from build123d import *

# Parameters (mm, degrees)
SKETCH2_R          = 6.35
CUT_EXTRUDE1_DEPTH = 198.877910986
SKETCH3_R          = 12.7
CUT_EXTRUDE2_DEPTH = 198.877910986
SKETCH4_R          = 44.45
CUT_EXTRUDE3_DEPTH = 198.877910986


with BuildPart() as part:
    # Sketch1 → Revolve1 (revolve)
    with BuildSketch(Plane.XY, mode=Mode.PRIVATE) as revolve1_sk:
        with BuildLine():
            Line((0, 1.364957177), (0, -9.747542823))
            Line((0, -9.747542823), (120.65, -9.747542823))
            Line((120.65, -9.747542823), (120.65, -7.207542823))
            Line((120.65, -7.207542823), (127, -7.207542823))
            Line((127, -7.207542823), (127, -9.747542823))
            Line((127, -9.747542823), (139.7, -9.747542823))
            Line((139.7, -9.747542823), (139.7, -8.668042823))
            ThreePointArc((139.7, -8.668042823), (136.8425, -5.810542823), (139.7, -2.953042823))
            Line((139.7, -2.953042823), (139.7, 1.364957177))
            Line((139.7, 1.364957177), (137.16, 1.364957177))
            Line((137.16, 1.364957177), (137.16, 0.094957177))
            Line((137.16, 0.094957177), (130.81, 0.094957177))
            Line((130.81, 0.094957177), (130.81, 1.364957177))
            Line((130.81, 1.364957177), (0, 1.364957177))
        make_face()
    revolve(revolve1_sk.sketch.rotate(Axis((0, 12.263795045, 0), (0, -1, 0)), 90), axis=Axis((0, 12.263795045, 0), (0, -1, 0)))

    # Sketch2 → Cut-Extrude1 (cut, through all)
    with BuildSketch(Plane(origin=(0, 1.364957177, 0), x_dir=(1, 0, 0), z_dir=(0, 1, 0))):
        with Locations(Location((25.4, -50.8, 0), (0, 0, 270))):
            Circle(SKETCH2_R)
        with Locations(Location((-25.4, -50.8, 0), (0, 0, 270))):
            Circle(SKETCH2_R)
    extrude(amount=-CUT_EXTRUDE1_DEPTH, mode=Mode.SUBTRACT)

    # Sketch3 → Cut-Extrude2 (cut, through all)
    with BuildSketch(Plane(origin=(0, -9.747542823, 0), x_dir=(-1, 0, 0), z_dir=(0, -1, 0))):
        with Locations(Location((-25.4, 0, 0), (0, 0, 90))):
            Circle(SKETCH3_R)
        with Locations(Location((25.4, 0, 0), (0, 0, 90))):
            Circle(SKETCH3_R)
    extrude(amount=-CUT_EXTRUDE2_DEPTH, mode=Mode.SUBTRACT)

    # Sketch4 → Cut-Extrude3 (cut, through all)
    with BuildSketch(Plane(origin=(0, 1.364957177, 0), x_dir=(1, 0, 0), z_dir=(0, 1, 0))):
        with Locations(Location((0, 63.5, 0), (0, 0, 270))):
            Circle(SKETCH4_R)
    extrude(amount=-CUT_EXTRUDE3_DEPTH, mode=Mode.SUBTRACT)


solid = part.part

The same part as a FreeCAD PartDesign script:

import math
import FreeCAD as App
import Part
import Sketcher
Q = App.Units.Quantity

doc = App.newDocument("Part")
body = doc.addObject("PartDesign::Body", "Body")

# Sketch on XY plane
sketch1 = body.newObject("Sketcher::SketchObject", "Sketch")
sketch1.AttachmentSupport = (doc.getObject("XY_Plane"), [""])
sketch1.MapMode = "FlatFace"
sketch1.addGeometry([
    Part.LineSegment(App.Vector(0, 1.4, 0), App.Vector(0, -9.7, 0)),  # 0
    Part.LineSegment(App.Vector(0, -9.7, 0), App.Vector(120.7, -9.7, 0)),  # 1
    Part.LineSegment(App.Vector(120.7, -9.7, 0), App.Vector(120.7, -7.2, 0)),  # 2
    Part.LineSegment(App.Vector(120.7, -7.2, 0), App.Vector(127, -7.2, 0)),  # 3
    Part.LineSegment(App.Vector(127, -7.2, 0), App.Vector(127, -9.7, 0)),  # 4
    Part.LineSegment(App.Vector(127, -9.7, 0), App.Vector(139.7, -9.7, 0)),  # 5
    Part.LineSegment(App.Vector(139.7, -9.7, 0), App.Vector(139.7, -8.7, 0)),  # 6
    Part.ArcOfCircle(Part.Circle(App.Vector(139.7, -5.8, 0), App.Vector(0, 0, 1), 2.9), math.radians(90), math.radians(270)),  # 7
    Part.LineSegment(App.Vector(139.7, -3, 0), App.Vector(139.7, 1.4, 0)),  # 8
    Part.LineSegment(App.Vector(139.7, 1.4, 0), App.Vector(137.2, 1.4, 0)),  # 9
    Part.LineSegment(App.Vector(137.2, 1.4, 0), App.Vector(137.2, 0.1, 0)),  # 10
    Part.LineSegment(App.Vector(137.2, 0.1, 0), App.Vector(130.8, 0.1, 0)),  # 11
    Part.LineSegment(App.Vector(130.8, 0.1, 0), App.Vector(130.8, 1.4, 0)),  # 12
    Part.LineSegment(App.Vector(130.8, 1.4, 0), App.Vector(0, 1.4, 0)),  # 13
], False)
sketch1.addConstraint([
    Sketcher.Constraint("Coincident", 0, 2, 1, 1),
    Sketcher.Constraint("Coincident", 1, 2, 2, 1),
    Sketcher.Constraint("Coincident", 2, 2, 3, 1),
    Sketcher.Constraint("Coincident", 3, 2, 4, 1),
    Sketcher.Constraint("Coincident", 4, 2, 5, 1),
    Sketcher.Constraint("Coincident", 5, 2, 6, 1),
    Sketcher.Constraint("Coincident", 6, 2, 7, 2),
    Sketcher.Constraint("Coincident", 7, 1, 8, 1),
    Sketcher.Constraint("Coincident", 8, 2, 9, 1),
    Sketcher.Constraint("Coincident", 9, 2, 10, 1),
    Sketcher.Constraint("Coincident", 10, 2, 11, 1),
    Sketcher.Constraint("Coincident", 11, 2, 12, 1),
    Sketcher.Constraint("Coincident", 12, 2, 13, 1),
    Sketcher.Constraint("Coincident", 13, 2, 0, 1),
    Sketcher.Constraint("Vertical", 0),
    Sketcher.Constraint("Horizontal", 1),
    Sketcher.Constraint("Vertical", 2),
    Sketcher.Constraint("Horizontal", 3),
    Sketcher.Constraint("Vertical", 4),
    Sketcher.Constraint("Horizontal", 5),
    Sketcher.Constraint("Vertical", 6),
    Sketcher.Constraint("Vertical", 8),
    Sketcher.Constraint("Horizontal", 9),
    Sketcher.Constraint("Vertical", 10),
    Sketcher.Constraint("Horizontal", 11),
    Sketcher.Constraint("Vertical", 12),
    Sketcher.Constraint("Horizontal", 13),
    Sketcher.Constraint("PointOnObject", 0, 2, -2),
    Sketcher.Constraint("Horizontal", 1, 2, 4, 2),
    Sketcher.Constraint("Horizontal", 9, 2, 12, 2),
    Sketcher.Constraint("Vertical", 7, 3, 5, 2),
    Sketcher.Constraint("Vertical", 6, 2, 7, 1),
    Sketcher.Constraint("Equal", 3, 11),
    Sketcher.Constraint("Equal", 9, 2),
    Sketcher.Constraint("DistanceX", 5, 1, 5, 2, Q("0.5 in")),
    Sketcher.Constraint("DistanceX", 9, 2, 9, 1, Q("0.1 in")),
    Sketcher.Constraint("DistanceX", -1, 1, 3, 2, Q("5 in")),
    Sketcher.Constraint("DistanceX", 1, 1, 1, 2, Q("4.75 in")),
    Sketcher.Constraint("DistanceY", 8, 1, 8, 2, Q("0.17 in")),
    Sketcher.Constraint("DistanceY", 10, 2, 10, 1, Q("0.05 in")),
    Sketcher.Constraint("Radius", 7, Q("0.1125 in")),
    Sketcher.Constraint("DistanceY", 0, 2, 0, 1, Q("0.4375 in")),
    Sketcher.Constraint("DistanceY", 7, 3, -1, 1, Q("5.810543 mm")),
])
revolution = body.newObject("PartDesign::Revolution", "Revolution")
revolution.Profile = sketch1
revolution.ReferenceAxis = (sketch1, ["V_Axis"])
revolution.Angle = 360

# Sketch on XZ plane
sketch2 = body.newObject("Sketcher::SketchObject", "Sketch001")
sketch2.AttachmentSupport = (doc.getObject("XZ_Plane"), [""])
sketch2.MapMode = "FlatFace"
sketch2.AttachmentOffset = App.Placement(App.Vector(0, 0, -1.364957), App.Rotation())
sketch2.addGeometry([
    Part.Circle(App.Vector(25, 51, 0), App.Vector(0, 0, 1), 6),
    Part.Circle(App.Vector(-25, 51, 0), App.Vector(0, 0, 1), 6),
], False)
sketch2.addConstraint([
    Sketcher.Constraint("Equal", 0, 1),
    Sketcher.Constraint("Symmetric", 0, 3, 1, 3, -2),
    Sketcher.Constraint("Diameter", 0, Q("0.5 in")),
    Sketcher.Constraint("DistanceX", -1, 1, 0, 3, Q("1 in")),
    Sketcher.Constraint("DistanceY", -1, 1, 0, 3, Q("2 in")),
])
pocket1 = body.newObject("PartDesign::Pocket", "Pocket")
pocket1.Profile = sketch2
pocket1.Type = "ThroughAll"
pocket1.Reversed = True

# Sketch on XZ plane
sketch3 = body.newObject("Sketcher::SketchObject", "Sketch002")
sketch3.AttachmentSupport = (doc.getObject("XZ_Plane"), [""])
sketch3.MapMode = "FlatFace"
sketch3.AttachmentOffset = App.Placement(App.Vector(0, 0, 9.747543), App.Rotation())
sketch3.addGeometry([
    Part.Circle(App.Vector(25, 0, 0), App.Vector(0, 0, 1), 13),
    Part.Circle(App.Vector(-25, 0, 0), App.Vector(0, 0, 1), 13),
], False)
sketch3.addConstraint([
    Sketcher.Constraint("Equal", 0, 1),
    Sketcher.Constraint("Symmetric", 0, 3, 1, 3, -1, 1),
    Sketcher.Constraint("PointOnObject", 0, 3, -1),
    Sketcher.Constraint("Diameter", 0, Q("1 in")),
    Sketcher.Constraint("DistanceX", -1, 1, 0, 3, Q("1 in")),
])
pocket2 = body.newObject("PartDesign::Pocket", "Pocket001")
pocket2.Profile = sketch3
pocket2.Type = "ThroughAll"

# Sketch on XZ plane
sketch4 = body.newObject("Sketcher::SketchObject", "Sketch003")
sketch4.AttachmentSupport = (doc.getObject("XZ_Plane"), [""])
sketch4.MapMode = "FlatFace"
sketch4.AttachmentOffset = App.Placement(App.Vector(0, 0, -1.364957), App.Rotation())
sketch4.addGeometry(Part.Circle(App.Vector(0, -64, 0), App.Vector(0, 0, 1), 44), False)
sketch4.addConstraint([
    Sketcher.Constraint("PointOnObject", 0, 3, -2),
    Sketcher.Constraint("Diameter", 0, Q("3.5 in")),
    Sketcher.Constraint("DistanceY", 0, 3, -1, 1, Q("2.5 in")),
])
pocket3 = body.newObject("PartDesign::Pocket", "Pocket002")
pocket3.Profile = sketch4
pocket3.Type = "ThroughAll"
pocket3.Reversed = True

doc.recompute()
